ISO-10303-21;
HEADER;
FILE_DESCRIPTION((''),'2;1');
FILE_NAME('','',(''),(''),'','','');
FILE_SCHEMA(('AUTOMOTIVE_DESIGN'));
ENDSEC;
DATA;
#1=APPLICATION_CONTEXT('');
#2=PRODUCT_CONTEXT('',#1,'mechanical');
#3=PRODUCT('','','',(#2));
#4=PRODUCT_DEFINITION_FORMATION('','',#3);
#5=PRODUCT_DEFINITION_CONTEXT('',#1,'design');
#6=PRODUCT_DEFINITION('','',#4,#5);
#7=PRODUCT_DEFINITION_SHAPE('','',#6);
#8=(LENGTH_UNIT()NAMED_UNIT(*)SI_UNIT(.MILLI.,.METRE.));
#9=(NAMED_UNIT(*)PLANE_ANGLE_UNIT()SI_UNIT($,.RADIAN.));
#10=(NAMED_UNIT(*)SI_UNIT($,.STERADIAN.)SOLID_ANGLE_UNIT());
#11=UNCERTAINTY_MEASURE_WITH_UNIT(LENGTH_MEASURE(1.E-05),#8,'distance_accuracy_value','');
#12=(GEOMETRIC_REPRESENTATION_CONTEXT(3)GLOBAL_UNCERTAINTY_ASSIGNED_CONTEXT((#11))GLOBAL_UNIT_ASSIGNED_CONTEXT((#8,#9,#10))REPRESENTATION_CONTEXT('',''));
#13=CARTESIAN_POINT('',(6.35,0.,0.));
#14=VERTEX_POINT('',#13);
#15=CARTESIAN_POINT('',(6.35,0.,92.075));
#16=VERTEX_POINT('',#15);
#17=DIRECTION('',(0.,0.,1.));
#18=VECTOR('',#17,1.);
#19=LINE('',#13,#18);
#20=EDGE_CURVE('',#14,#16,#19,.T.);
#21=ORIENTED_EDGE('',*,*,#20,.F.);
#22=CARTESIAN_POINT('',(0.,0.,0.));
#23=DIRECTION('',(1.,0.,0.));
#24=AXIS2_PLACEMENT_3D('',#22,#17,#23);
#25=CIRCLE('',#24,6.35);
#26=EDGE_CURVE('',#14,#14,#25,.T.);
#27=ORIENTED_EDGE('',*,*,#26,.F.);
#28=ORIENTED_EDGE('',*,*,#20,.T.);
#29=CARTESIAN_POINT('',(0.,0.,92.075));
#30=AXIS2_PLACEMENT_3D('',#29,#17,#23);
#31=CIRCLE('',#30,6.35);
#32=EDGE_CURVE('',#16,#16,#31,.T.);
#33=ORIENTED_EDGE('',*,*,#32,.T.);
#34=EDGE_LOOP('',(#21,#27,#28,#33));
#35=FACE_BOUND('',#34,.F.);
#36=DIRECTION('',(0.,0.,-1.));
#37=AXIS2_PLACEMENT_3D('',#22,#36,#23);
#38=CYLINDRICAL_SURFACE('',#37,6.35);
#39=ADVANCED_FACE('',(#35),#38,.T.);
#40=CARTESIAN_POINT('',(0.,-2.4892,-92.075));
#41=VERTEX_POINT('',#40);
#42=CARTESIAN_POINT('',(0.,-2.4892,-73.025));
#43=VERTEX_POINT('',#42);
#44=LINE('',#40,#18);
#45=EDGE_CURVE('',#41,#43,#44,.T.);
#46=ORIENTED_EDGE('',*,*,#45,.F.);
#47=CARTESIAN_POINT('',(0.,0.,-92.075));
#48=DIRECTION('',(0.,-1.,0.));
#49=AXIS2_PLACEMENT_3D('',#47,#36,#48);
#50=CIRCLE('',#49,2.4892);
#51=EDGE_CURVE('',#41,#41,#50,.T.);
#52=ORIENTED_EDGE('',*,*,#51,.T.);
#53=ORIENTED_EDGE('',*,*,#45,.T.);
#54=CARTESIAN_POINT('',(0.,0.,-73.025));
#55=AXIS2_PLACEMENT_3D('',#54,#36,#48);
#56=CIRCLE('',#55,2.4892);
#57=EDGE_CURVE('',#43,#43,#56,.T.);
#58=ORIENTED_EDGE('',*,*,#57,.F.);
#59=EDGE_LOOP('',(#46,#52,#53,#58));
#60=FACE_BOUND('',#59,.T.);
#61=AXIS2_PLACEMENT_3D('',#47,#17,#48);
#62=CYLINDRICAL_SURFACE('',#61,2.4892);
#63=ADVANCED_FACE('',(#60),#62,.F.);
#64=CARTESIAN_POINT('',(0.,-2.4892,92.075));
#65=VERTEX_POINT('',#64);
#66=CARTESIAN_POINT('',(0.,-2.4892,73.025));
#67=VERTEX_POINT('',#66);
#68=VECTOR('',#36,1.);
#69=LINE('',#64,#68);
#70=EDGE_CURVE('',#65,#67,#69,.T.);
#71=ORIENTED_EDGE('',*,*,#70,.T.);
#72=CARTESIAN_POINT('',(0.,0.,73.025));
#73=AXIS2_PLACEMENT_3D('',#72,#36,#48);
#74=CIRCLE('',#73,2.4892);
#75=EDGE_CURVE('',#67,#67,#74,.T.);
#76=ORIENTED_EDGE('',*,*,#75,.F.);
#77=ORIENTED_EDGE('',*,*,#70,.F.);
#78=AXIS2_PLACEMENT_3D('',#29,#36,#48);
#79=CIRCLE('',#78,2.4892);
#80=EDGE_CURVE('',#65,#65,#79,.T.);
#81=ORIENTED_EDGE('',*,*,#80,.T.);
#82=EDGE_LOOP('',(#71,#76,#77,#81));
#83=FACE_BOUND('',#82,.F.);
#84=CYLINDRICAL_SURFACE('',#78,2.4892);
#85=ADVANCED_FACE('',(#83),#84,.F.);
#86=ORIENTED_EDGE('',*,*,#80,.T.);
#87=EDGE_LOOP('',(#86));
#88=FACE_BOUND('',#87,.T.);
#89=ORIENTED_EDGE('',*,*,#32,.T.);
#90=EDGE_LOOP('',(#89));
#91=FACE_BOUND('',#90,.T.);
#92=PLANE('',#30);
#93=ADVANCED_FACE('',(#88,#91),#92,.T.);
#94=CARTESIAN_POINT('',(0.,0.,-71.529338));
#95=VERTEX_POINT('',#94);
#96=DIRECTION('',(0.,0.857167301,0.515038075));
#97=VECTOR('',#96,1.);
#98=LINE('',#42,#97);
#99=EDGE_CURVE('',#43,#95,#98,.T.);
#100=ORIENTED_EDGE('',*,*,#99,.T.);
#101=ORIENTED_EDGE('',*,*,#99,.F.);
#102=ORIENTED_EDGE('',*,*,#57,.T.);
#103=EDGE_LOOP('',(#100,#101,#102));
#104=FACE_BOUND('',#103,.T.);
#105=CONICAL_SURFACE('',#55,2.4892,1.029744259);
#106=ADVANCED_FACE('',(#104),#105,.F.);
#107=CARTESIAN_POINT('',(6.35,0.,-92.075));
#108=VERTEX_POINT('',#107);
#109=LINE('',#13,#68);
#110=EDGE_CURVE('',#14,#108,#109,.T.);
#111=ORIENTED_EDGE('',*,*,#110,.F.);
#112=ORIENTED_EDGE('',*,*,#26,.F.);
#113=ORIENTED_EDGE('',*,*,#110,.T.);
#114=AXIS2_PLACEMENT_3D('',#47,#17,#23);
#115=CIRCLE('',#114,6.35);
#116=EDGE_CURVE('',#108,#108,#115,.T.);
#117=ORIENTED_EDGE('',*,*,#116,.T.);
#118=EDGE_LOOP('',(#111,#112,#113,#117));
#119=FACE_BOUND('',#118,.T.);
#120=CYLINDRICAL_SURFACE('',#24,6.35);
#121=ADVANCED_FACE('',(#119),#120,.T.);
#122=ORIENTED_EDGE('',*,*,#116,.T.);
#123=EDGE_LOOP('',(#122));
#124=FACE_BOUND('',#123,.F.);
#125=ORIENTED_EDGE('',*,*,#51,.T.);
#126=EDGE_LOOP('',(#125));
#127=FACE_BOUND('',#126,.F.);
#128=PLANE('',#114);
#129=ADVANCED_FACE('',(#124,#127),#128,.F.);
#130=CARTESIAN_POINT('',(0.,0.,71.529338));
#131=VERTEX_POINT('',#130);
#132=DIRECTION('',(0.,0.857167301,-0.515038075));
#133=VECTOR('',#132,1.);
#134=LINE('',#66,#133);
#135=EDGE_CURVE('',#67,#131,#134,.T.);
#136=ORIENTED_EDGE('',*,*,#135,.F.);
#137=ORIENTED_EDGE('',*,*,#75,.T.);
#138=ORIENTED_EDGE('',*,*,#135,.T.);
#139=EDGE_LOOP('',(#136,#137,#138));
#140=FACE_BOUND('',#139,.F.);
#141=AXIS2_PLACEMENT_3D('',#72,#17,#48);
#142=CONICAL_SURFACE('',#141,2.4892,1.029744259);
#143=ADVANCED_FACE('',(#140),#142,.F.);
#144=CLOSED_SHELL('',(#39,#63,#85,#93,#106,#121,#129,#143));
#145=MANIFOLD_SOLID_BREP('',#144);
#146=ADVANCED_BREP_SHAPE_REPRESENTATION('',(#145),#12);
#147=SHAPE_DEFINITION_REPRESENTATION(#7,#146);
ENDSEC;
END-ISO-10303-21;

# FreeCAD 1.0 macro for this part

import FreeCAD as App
import Part
import Sketcher

V = App.Vector
Q = App.Units.Quantity

doc = App.newDocument("Part")
body = doc.addObject("PartDesign::Body", "Body")

# Sketch on XY plane
sketch1 = body.newObject("Sketcher::SketchObject", "Sketch")
sketch1.AttachmentSupport = (doc.getObject("XY_Plane"), [""])
sketch1.MapMode = "FlatFace"
sketch1.addGeometry(Part.Circle(V(0, 0, 0), V(0, 0, 1), 6), False)
sketch1.addConstraint(Sketcher.Constraint("Coincident", 0, 3, -1, 1))
sketch1.addConstraint(Sketcher.Constraint("Diameter", 0, Q("0.5 in")))
pad1 = body.newObject("PartDesign::Pad", "Pad")
pad1.Profile = sketch1
pad1.Length = Q("7.25 in")
pad1.Midplane = True

# Sketch on XY plane
sketch2 = body.newObject("Sketcher::SketchObject", "Sketch001")
sketch2.AttachmentSupport = (doc.getObject("XY_Plane"), [""])
sketch2.MapMode = "FlatFace"
sketch2.AttachmentOffset = App.Placement(V(0, 0, 3.625 * 25.4), App.Rotation())
sketch2.addGeometry(Part.Circle(V(0, 0, 0), V(0, 0, 1), 2.5), False)
sketch2.addConstraint(Sketcher.Constraint("Coincident", 0, 3, -1, 1))
sketch2.addConstraint(Sketcher.Constraint("Diameter", 0, Q("0.196 in")))
doc.recompute()
hole = body.newObject("PartDesign::Hole", "Hole")
hole.Profile = sketch2
hole.ThreadType = "None"
hole.Diameter = Q("0.196 in")
hole.DepthType = "Dimension"
hole.Depth = Q("0.75 in")
hole.DrillPoint = "Angled"
hole.DrillPointAngle = 118
doc.recompute()

mirrored = body.newObject("PartDesign::Mirrored", "Mirrored")
mirrored.Originals = [hole]
mirrored.MirrorPlane = (doc.getObject("XY_Plane"), [""])
body.Tip = mirrored

doc.recompute()
